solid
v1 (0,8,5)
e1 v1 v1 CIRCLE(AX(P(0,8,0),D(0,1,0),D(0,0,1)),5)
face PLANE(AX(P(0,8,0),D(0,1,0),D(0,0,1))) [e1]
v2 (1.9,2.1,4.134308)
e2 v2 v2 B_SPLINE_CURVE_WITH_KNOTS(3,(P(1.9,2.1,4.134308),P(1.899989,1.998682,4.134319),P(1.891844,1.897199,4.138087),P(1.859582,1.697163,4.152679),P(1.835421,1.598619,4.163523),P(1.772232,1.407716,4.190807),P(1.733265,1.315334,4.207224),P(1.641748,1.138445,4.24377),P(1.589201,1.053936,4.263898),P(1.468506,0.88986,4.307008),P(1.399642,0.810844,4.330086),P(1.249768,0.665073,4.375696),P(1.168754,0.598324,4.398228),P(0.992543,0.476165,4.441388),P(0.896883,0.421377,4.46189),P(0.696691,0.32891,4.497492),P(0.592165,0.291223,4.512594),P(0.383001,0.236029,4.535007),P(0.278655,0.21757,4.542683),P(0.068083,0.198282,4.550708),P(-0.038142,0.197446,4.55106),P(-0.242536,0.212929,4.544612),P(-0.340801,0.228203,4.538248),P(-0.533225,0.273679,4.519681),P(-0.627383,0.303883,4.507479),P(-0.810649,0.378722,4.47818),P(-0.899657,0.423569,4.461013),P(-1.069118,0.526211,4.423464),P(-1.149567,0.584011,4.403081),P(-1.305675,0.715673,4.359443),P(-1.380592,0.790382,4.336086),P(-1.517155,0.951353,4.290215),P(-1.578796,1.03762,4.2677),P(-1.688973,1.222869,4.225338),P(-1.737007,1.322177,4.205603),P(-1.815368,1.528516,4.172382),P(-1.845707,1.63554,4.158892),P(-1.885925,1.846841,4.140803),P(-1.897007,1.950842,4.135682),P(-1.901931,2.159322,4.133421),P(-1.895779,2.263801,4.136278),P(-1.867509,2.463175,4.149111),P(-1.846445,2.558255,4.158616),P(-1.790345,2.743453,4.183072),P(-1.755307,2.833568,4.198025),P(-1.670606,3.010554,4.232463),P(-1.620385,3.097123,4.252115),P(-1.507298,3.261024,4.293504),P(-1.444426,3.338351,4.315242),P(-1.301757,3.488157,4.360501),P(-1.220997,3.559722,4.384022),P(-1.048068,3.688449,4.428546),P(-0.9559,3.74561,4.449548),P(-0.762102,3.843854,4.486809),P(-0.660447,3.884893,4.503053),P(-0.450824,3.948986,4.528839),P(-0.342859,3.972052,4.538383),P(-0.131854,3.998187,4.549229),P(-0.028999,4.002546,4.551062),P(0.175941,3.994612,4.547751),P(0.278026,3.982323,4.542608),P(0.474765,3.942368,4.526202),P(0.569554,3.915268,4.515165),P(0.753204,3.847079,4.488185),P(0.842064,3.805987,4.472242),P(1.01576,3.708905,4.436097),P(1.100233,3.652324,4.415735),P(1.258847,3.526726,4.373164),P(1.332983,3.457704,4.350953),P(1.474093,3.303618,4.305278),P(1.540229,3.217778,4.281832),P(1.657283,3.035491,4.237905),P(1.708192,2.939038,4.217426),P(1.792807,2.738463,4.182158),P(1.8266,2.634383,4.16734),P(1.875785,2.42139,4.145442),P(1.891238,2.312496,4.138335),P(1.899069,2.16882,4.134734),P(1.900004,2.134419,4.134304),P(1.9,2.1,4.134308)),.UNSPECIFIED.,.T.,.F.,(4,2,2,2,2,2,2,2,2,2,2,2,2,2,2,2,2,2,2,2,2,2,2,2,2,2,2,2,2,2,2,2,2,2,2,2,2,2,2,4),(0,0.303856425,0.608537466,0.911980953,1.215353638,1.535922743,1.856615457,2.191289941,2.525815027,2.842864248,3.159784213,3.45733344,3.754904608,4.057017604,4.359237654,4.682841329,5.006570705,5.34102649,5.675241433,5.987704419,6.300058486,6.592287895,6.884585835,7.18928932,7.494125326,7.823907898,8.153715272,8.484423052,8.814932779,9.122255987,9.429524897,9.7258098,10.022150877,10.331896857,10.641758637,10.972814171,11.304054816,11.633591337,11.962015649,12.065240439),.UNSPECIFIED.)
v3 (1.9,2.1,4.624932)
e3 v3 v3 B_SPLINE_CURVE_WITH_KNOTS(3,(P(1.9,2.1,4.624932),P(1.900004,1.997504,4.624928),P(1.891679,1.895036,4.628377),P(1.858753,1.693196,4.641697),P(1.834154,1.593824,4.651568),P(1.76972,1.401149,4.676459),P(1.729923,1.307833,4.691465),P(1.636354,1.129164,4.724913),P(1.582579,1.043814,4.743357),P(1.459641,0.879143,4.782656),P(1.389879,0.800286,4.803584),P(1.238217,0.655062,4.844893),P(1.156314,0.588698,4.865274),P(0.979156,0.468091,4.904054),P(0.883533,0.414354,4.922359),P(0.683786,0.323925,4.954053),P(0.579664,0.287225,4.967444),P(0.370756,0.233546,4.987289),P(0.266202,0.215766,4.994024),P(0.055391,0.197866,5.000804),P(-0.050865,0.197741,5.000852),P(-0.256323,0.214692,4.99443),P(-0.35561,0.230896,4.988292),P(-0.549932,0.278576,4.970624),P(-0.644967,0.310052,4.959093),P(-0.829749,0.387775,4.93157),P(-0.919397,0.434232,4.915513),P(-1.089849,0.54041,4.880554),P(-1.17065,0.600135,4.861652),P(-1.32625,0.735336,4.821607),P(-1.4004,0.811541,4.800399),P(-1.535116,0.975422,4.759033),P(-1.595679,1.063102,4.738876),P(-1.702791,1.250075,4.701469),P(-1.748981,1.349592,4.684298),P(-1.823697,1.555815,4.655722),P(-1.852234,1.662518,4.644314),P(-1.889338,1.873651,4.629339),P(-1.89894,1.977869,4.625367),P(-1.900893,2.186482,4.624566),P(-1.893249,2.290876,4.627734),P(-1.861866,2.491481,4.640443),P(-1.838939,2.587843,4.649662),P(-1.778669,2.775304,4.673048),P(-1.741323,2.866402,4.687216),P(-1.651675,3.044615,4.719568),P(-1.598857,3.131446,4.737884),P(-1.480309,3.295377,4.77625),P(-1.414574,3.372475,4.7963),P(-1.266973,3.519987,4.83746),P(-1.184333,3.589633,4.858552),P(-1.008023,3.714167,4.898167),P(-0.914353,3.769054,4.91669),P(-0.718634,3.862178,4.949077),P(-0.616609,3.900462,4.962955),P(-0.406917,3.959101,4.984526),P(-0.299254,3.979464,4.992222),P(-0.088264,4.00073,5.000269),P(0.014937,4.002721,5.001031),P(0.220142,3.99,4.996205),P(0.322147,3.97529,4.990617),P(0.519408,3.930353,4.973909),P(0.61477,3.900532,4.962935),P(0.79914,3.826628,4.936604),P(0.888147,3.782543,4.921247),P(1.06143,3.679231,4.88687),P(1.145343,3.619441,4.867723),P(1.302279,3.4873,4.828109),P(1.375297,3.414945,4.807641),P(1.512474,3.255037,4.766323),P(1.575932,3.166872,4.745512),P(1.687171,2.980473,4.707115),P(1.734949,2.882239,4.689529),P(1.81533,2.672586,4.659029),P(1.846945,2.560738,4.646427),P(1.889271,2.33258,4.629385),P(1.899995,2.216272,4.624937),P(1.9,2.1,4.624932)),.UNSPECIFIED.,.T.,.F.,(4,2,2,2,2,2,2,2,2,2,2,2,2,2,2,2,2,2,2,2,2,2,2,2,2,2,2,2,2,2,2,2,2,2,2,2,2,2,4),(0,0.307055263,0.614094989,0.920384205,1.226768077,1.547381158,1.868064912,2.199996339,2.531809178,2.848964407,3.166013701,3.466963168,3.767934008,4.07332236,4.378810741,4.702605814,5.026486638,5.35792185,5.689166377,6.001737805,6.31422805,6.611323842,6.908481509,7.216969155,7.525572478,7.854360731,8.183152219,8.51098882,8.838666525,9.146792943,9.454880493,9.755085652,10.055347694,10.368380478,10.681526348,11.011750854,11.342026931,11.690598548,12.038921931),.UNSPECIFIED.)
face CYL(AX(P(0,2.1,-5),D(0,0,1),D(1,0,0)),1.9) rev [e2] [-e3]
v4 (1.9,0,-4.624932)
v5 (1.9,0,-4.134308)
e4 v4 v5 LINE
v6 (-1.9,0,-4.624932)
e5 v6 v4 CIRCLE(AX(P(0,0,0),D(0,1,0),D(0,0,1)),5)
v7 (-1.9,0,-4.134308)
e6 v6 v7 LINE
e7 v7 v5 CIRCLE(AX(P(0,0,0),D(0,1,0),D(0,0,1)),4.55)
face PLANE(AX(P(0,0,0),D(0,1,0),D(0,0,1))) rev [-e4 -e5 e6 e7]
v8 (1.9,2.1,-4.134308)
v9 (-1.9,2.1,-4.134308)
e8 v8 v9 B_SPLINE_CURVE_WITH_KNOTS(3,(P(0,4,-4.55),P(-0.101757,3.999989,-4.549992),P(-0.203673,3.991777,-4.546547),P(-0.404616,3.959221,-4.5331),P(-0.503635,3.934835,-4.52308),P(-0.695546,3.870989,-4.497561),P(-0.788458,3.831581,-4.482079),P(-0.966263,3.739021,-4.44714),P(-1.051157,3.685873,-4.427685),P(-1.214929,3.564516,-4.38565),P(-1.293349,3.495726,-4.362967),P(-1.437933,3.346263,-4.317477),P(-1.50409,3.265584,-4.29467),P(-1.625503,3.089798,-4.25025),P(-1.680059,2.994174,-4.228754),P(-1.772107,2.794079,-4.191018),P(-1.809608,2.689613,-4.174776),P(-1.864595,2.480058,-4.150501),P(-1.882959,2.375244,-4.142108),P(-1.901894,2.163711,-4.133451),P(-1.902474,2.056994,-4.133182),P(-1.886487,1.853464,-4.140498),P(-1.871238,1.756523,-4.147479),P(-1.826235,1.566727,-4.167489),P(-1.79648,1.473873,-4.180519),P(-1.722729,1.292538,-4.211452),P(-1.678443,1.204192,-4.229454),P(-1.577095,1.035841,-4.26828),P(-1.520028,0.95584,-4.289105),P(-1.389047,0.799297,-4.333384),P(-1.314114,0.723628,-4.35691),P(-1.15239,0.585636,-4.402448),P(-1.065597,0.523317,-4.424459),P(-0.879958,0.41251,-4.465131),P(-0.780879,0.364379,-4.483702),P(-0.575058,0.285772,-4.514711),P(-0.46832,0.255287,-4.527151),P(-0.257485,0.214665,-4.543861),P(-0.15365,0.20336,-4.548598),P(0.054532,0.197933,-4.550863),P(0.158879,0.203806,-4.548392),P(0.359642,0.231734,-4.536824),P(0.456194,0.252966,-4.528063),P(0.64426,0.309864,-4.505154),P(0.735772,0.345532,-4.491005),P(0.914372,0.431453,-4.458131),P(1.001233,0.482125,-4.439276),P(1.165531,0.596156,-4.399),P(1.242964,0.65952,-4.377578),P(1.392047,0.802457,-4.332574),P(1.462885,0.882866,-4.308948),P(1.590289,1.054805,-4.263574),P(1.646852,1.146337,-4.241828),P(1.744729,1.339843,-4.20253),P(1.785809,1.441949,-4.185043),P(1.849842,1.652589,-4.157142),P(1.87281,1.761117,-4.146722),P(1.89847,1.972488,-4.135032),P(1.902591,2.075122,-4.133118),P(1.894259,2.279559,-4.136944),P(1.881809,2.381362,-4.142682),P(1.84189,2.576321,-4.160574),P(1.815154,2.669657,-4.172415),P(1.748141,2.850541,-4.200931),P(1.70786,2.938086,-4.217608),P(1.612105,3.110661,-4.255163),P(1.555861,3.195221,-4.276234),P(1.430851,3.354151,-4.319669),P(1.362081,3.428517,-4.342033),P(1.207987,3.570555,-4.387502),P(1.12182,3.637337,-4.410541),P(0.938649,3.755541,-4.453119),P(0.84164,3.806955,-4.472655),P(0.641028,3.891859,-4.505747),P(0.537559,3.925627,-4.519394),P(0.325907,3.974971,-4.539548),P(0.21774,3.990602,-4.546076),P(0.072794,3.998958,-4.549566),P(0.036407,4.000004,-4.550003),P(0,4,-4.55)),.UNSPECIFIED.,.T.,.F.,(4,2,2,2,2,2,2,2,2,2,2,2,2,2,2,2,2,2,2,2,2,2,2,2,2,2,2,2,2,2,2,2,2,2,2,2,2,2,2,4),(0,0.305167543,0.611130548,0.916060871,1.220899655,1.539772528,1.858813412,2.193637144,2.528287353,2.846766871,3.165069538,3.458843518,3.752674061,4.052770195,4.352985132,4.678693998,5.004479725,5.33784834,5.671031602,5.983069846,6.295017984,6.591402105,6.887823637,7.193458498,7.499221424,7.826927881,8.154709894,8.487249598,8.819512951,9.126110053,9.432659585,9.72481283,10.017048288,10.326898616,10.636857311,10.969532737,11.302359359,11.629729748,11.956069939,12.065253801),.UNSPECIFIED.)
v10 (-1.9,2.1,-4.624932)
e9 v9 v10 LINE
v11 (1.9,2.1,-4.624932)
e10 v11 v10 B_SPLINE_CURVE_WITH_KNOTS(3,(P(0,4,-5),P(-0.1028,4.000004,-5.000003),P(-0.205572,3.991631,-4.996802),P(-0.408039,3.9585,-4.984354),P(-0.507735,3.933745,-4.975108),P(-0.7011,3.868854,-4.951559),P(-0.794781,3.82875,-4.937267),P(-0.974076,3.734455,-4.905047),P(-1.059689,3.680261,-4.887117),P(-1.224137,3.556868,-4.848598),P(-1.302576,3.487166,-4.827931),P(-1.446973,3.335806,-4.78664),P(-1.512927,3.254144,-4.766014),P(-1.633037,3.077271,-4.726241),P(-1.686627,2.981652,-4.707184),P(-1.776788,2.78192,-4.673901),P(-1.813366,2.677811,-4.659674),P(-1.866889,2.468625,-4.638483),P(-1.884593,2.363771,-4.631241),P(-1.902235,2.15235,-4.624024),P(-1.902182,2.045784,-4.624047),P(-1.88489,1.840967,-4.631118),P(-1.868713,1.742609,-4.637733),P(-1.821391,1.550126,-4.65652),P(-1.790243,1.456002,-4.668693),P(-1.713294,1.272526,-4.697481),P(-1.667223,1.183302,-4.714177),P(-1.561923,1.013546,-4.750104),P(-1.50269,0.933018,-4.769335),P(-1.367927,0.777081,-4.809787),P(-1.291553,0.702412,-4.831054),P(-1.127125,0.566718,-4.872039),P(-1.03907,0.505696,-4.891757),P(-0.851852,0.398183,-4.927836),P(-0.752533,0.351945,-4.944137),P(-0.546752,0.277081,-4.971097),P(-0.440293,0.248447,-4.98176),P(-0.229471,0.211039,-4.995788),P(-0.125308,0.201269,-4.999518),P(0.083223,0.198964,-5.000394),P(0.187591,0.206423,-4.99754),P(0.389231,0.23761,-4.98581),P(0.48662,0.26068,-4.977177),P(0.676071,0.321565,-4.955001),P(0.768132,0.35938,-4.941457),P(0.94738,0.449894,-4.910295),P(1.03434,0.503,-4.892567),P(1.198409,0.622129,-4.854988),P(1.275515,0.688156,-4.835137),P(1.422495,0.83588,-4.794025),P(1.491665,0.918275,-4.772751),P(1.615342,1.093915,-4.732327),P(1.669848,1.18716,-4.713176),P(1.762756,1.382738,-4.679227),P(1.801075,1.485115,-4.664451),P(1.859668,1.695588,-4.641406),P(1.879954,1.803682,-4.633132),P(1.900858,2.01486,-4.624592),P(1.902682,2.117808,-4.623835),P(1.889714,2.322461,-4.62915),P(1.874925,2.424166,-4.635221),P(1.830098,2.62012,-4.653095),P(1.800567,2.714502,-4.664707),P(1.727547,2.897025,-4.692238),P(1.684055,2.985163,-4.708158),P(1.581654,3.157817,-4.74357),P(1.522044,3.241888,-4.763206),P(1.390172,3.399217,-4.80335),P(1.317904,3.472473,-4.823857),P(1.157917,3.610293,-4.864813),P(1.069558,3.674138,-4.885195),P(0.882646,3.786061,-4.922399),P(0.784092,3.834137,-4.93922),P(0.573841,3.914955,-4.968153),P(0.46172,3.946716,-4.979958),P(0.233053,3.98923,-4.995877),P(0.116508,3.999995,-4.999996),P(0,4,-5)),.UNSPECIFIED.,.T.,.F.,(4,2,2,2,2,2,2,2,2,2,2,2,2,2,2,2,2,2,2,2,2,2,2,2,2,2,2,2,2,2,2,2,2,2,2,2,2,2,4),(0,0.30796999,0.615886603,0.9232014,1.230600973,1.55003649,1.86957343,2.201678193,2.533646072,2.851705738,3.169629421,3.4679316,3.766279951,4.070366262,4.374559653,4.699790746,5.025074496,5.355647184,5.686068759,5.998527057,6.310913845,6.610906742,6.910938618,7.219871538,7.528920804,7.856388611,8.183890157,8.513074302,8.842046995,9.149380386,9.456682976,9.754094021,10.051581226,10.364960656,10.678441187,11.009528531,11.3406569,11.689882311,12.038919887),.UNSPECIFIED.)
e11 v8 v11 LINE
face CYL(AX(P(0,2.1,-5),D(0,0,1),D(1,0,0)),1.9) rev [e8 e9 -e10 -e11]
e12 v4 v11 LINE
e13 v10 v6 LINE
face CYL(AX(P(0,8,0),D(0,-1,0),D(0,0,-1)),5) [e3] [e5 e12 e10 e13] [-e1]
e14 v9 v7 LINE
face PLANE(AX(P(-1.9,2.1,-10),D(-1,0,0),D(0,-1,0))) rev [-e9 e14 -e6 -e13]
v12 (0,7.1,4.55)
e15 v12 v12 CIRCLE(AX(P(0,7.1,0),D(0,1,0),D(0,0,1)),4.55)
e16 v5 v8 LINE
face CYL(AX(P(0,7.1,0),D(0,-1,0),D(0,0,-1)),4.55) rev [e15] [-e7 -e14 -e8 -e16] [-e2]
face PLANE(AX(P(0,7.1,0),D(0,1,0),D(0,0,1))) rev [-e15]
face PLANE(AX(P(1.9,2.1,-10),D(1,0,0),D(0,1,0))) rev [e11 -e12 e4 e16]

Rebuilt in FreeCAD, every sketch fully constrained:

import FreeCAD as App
import Part
import Sketcher

V = App.Vector

doc = App.newDocument("Part")
body = doc.addObject("PartDesign::Body", "Body")

sketch1 = body.newObject("Sketcher::SketchObject", "Sketch")
sketch1.AttachmentSupport = (doc.getObject("XZ_Plane"), [""])
sketch1.MapMode = "FlatFace"
sketch1.addGeometry(Part.Circle(V(0, 0, 0), V(0, 0, 1), 5), False)
sketch1.addConstraint([
    Sketcher.Constraint("Coincident", 0, 3, -1, 1),
    Sketcher.Constraint("Diameter", 0, 10.0),
])
pad1 = body.newObject("PartDesign::Pad", "Pad")
pad1.Profile = sketch1
pad1.Length = 8
pad1.Reversed = True

sketch2 = body.newObject("Sketcher::SketchObject", "Sketch001")
sketch2.AttachmentSupport = (doc.getObject("XZ_Plane"), [""])
sketch2.MapMode = "FlatFace"
sketch2.addGeometry(Part.Circle(V(0, 0, 0), V(0, 0, 1), 4.55), False)
sketch2.addConstraint([
    Sketcher.Constraint("Coincident", 0, 3, -1, 1),
    Sketcher.Constraint("Diameter", 0, 9.1),
])
pocket1 = body.newObject("PartDesign::Pocket", "Pocket")
pocket1.Profile = sketch2
pocket1.Length = 7.1

sketch3 = body.newObject("Sketcher::SketchObject", "Sketch002")
sketch3.AttachmentSupport = (doc.getObject("XY_Plane"), [""])
sketch3.MapMode = "FlatFace"
sketch3.addGeometry(Part.Circle(V(0, 2.1, 0), V(0, 0, 1), 1.9), False)
sketch3.addConstraint([
    Sketcher.Constraint("PointOnObject", 0, 3, -2),
    Sketcher.Constraint("Diameter", 0, 3.8),
    Sketcher.Constraint("DistanceY", -1, 1, 0, 3, 2.1),
])
pocket2 = body.newObject("PartDesign::Pocket", "Pocket001")
pocket2.Profile = sketch3
pocket2.Type = "ThroughAll"
pocket2.Midplane = True

sketch4 = body.newObject("Sketcher::SketchObject", "Sketch003")
sketch4.AttachmentSupport = (doc.getObject("XY_Plane"), [""])
sketch4.MapMode = "FlatFace"
sketch4.addGeometry([
    Part.LineSegment(V(-1.9, 2.1, 0), V(-1.9, 0, 0)),
    Part.LineSegment(V(-1.9, 0, 0), V(1.9, 0, 0)),
    Part.LineSegment(V(1.9, 0, 0), V(1.9, 2.1, 0)),
    Part.LineSegment(V(1.9, 2.1, 0), V(-1.9, 2.1, 0)),
], False)
sketch4.addConstraint([
    Sketcher.Constraint("Coincident", 0, 2, 1, 1),
    Sketcher.Constraint("Coincident", 1, 2, 2, 1),
    Sketcher.Constraint("Coincident", 2, 2, 3, 1),
    Sketcher.Constraint("Coincident", 3, 2, 0, 1),
    Sketcher.Constraint("Vertical", 0),
    Sketcher.Constraint("Horizontal", 1),
    Sketcher.Constraint("Vertical", 2),
    Sketcher.Constraint("Horizontal", 3),
    Sketcher.Constraint("Symmetric", 0, 2, 1, 2, -1, 1),
    Sketcher.Constraint("DistanceX", 1, 1, 1, 2, 3.8),
    Sketcher.Constraint("DistanceY", 0, 2, 0, 1, 2.1),
])
pocket3 = body.newObject("PartDesign::Pocket", "Pocket002")
pocket3.Profile = sketch4
pocket3.Length = 10

doc.recompute()
